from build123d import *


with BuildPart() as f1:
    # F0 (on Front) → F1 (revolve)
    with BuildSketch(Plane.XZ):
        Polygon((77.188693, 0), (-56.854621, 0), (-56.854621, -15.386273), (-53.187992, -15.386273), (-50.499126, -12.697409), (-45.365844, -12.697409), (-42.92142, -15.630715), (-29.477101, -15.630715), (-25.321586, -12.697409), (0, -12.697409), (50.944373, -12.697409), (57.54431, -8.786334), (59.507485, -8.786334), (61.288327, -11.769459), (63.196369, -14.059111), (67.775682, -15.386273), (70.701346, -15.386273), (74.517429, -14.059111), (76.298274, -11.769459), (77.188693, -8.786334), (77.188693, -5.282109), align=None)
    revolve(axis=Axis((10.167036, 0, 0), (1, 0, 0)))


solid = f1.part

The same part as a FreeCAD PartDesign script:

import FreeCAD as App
import Part
import Sketcher

doc = App.newDocument("Part")
body = doc.addObject("PartDesign::Body", "Body")

# Sketch on XZ plane
sketch1 = body.newObject("Sketcher::SketchObject", "Sketch")
sketch1.AttachmentSupport = (doc.getObject("XZ_Plane"), [""])
sketch1.MapMode = "FlatFace"
sketch1.addGeometry(Part.LineSegment(App.Vector(77.2, 0, 0), App.Vector(-56.9, 0, 0)), False)
sketch1.addGeometry(Part.LineSegment(App.Vector(-56.9, 0, 0), App.Vector(-56.9, -15.4, 0)), False)
sketch1.addGeometry(Part.LineSegment(App.Vector(-56.9, -15.4, 0), App.Vector(-53.2, -15.4, 0)), False)
sketch1.addGeometry(Part.LineSegment(App.Vector(-53.2, -15.4, 0), App.Vector(-50.5, -12.7, 0)), False)
sketch1.addGeometry(Part.LineSegment(App.Vector(-50.5, -12.7, 0), App.Vector(-45.4, -12.7, 0)), False)
sketch1.addGeometry(Part.LineSegment(App.Vector(-45.4, -12.7, 0), App.Vector(-42.9, -15.6, 0)), False)
sketch1.addGeometry(Part.LineSegment(App.Vector(-42.9, -15.6, 0), App.Vector(-29.5, -15.6, 0)), False)
sketch1.addGeometry(Part.LineSegment(App.Vector(-29.5, -15.6, 0), App.Vector(-25.3, -12.7, 0)), False)
sketch1.addGeometry(Part.LineSegment(App.Vector(-25.3, -12.7, 0), App.Vector(50.9, -12.7, 0)), False)
sketch1.addGeometry(Part.LineSegment(App.Vector(50.9, -12.7, 0), App.Vector(57.5, -8.8, 0)), False)
sketch1.addGeometry(Part.LineSegment(App.Vector(57.5, -8.8, 0), App.Vector(59.5, -8.8, 0)), False)
sketch1.addGeometry(Part.LineSegment(App.Vector(59.5, -8.8, 0), App.Vector(61.3, -11.8, 0)), False)
sketch1.addGeometry(Part.LineSegment(App.Vector(61.3, -11.8, 0), App.Vector(63.2, -14.1, 0)), False)
sketch1.addGeometry(Part.LineSegment(App.Vector(63.2, -14.1, 0), App.Vector(67.8, -15.4, 0)), False)
sketch1.addGeometry(Part.LineSegment(App.Vector(67.8, -15.4, 0), App.Vector(70.7, -15.4, 0)), False)
sketch1.addGeometry(Part.LineSegment(App.Vector(70.7, -15.4, 0), App.Vector(74.5, -14.1, 0)), False)
sketch1.addGeometry(Part.LineSegment(App.Vector(74.5, -14.1, 0), App.Vector(76.3, -11.8, 0)), False)
sketch1.addGeometry(Part.LineSegment(App.Vector(76.3, -11.8, 0), App.Vector(77.2, -8.8, 0)), False)
sketch1.addGeometry(Part.LineSegment(App.Vector(77.2, -8.8, 0), App.Vector(77.2, 0, 0)), False)
sketch1.addConstraint(Sketcher.Constraint("Coincident", 0, 2, 1, 1))
sketch1.addConstraint(Sketcher.Constraint("Coincident", 1, 2, 2, 1))
sketch1.addConstraint(Sketcher.Constraint("Coincident", 2, 2, 3, 1))
sketch1.addConstraint(Sketcher.Constraint("Coincident", 3, 2, 4, 1))
sketch1.addConstraint(Sketcher.Constraint("Coincident", 4, 2, 5, 1))
sketch1.addConstraint(Sketcher.Constraint("Coincident", 5, 2, 6, 1))
sketch1.addConstraint(Sketcher.Constraint("Coincident", 6, 2, 7, 1))
sketch1.addConstraint(Sketcher.Constraint("Coincident", 7, 2, 8, 1))
sketch1.addConstraint(Sketcher.Constraint("Coincident", 8, 2, 9, 1))
sketch1.addConstraint(Sketcher.Constraint("Coincident", 9, 2, 10, 1))
sketch1.addConstraint(Sketcher.Constraint("Coincident", 10, 2, 11, 1))
sketch1.addConstraint(Sketcher.Constraint("Coincident", 11, 2, 12, 1))
sketch1.addConstraint(Sketcher.Constraint("Coincident", 12, 2, 13, 1))
sketch1.addConstraint(Sketcher.Constraint("Coincident", 13, 2, 14, 1))
sketch1.addConstraint(Sketcher.Constraint("Coincident", 14, 2, 15, 1))
sketch1.addConstraint(Sketcher.Constraint("Coincident", 15, 2, 16, 1))
sketch1.addConstraint(Sketcher.Constraint("Coincident", 16, 2, 17, 1))
sketch1.addConstraint(Sketcher.Constraint("Coincident", 17, 2, 18, 1))
sketch1.addConstraint(Sketcher.Constraint("Coincident", 18, 2, 0, 1))
sketch1.addConstraint(Sketcher.Constraint("Horizontal", 0))
sketch1.addConstraint(Sketcher.Constraint("Vertical", 1))
sketch1.addConstraint(Sketcher.Constraint("Horizontal", 2))
sketch1.addConstraint(Sketcher.Constraint("Horizontal", 4))
sketch1.addConstraint(Sketcher.Constraint("Horizontal", 6))
sketch1.addConstraint(Sketcher.Constraint("Horizontal", 8))
sketch1.addConstraint(Sketcher.Constraint("Horizontal", 10))
sketch1.addConstraint(Sketcher.Constraint("Horizontal", 14))
sketch1.addConstraint(Sketcher.Constraint("Vertical", 18))
sketch1.addConstraint(Sketcher.Constraint("PointOnObject", 0, 2, -1))
sketch1.addConstraint(Sketcher.Constraint("Parallel", 5, 12))
sketch1.addConstraint(Sketcher.Constraint("Horizontal", 4, 2, 7, 2))
sketch1.addConstraint(Sketcher.Constraint("Horizontal", 2, 2, 13, 2))
sketch1.addConstraint(Sketcher.Constraint("Horizontal", 12, 2, 15, 2))
sketch1.addConstraint(Sketcher.Constraint("Horizontal", 11, 2, 16, 2))
sketch1.addConstraint(Sketcher.Constraint("Horizontal", 10, 2, 17, 2))
sketch1.addConstraint(Sketcher.Constraint("DistanceX", 2, 1, 2, 2, 3.666629))
sketch1.addConstraint(Sketcher.Constraint("DistanceX", 4, 1, 4, 2, 5.133282))
sketch1.addConstraint(Sketcher.Constraint("DistanceX", 6, 1, 6, 2, 13.444319))
sketch1.addConstraint(Sketcher.Constraint("DistanceX", 8, 1, 8, 2, 76.265959))
sketch1.addConstraint(Sketcher.Constraint("DistanceX", 6, 2, -1, 1, 29.477101))
sketch1.addConstraint(Sketcher.Constraint("DistanceX", 1, 2, 5, 2, 13.933201))
sketch1.addConstraint(Sketcher.Constraint("DistanceX", 3, 2, 8, 2, 101.443499))
sketch1.addConstraint(Sketcher.Constraint("DistanceY", 12, 2, 8, 2, 1.361702))
sketch1.addConstraint(Sketcher.Constraint("Distance", 3, 3.802629))
sketch1.addConstraint(Sketcher.Constraint("Distance", 5, 3.81831))
sketch1.addConstraint(Sketcher.Constraint("Distance", 7, 5.08651))
sketch1.addConstraint(Sketcher.Constraint("Distance", 12, 2.980458))
sketch1.addConstraint(Sketcher.Constraint("Distance", 15, 4.040278))
sketch1.addConstraint(Sketcher.Constraint("Distance", 17, 3.113179))
sketch1.addConstraint(Sketcher.Constraint("DistanceX", 0, 2, 0, 1, 134.043314))
sketch1.addConstraint(Sketcher.Constraint("DistanceX", 10, 1, 10, 2, 1.963175))
sketch1.addConstraint(Sketcher.Constraint("DistanceX", 14, 1, 14, 2, 2.925664))
sketch1.addConstraint(Sketcher.Constraint("DistanceY", 1, 2, 1, 1, 15.386273))
sketch1.addConstraint(Sketcher.Constraint("DistanceY", 18, 1, 18, 2, 8.786334))
sketch1.addConstraint(Sketcher.Constraint("DistanceX", -1, 1, 9, 2, 57.54431))
sketch1.addConstraint(Sketcher.Constraint("DistanceX", -1, 1, 12, 2, 63.196369))
sketch1.addConstraint(Sketcher.Constraint("DistanceX", -1, 1, 15, 2, 74.517429))
revolution = body.newObject("PartDesign::Revolution", "Revolution")
revolution.Profile = sketch1
revolution.ReferenceAxis = (sketch1, ["H_Axis"])
revolution.Angle = 360

doc.recompute()
